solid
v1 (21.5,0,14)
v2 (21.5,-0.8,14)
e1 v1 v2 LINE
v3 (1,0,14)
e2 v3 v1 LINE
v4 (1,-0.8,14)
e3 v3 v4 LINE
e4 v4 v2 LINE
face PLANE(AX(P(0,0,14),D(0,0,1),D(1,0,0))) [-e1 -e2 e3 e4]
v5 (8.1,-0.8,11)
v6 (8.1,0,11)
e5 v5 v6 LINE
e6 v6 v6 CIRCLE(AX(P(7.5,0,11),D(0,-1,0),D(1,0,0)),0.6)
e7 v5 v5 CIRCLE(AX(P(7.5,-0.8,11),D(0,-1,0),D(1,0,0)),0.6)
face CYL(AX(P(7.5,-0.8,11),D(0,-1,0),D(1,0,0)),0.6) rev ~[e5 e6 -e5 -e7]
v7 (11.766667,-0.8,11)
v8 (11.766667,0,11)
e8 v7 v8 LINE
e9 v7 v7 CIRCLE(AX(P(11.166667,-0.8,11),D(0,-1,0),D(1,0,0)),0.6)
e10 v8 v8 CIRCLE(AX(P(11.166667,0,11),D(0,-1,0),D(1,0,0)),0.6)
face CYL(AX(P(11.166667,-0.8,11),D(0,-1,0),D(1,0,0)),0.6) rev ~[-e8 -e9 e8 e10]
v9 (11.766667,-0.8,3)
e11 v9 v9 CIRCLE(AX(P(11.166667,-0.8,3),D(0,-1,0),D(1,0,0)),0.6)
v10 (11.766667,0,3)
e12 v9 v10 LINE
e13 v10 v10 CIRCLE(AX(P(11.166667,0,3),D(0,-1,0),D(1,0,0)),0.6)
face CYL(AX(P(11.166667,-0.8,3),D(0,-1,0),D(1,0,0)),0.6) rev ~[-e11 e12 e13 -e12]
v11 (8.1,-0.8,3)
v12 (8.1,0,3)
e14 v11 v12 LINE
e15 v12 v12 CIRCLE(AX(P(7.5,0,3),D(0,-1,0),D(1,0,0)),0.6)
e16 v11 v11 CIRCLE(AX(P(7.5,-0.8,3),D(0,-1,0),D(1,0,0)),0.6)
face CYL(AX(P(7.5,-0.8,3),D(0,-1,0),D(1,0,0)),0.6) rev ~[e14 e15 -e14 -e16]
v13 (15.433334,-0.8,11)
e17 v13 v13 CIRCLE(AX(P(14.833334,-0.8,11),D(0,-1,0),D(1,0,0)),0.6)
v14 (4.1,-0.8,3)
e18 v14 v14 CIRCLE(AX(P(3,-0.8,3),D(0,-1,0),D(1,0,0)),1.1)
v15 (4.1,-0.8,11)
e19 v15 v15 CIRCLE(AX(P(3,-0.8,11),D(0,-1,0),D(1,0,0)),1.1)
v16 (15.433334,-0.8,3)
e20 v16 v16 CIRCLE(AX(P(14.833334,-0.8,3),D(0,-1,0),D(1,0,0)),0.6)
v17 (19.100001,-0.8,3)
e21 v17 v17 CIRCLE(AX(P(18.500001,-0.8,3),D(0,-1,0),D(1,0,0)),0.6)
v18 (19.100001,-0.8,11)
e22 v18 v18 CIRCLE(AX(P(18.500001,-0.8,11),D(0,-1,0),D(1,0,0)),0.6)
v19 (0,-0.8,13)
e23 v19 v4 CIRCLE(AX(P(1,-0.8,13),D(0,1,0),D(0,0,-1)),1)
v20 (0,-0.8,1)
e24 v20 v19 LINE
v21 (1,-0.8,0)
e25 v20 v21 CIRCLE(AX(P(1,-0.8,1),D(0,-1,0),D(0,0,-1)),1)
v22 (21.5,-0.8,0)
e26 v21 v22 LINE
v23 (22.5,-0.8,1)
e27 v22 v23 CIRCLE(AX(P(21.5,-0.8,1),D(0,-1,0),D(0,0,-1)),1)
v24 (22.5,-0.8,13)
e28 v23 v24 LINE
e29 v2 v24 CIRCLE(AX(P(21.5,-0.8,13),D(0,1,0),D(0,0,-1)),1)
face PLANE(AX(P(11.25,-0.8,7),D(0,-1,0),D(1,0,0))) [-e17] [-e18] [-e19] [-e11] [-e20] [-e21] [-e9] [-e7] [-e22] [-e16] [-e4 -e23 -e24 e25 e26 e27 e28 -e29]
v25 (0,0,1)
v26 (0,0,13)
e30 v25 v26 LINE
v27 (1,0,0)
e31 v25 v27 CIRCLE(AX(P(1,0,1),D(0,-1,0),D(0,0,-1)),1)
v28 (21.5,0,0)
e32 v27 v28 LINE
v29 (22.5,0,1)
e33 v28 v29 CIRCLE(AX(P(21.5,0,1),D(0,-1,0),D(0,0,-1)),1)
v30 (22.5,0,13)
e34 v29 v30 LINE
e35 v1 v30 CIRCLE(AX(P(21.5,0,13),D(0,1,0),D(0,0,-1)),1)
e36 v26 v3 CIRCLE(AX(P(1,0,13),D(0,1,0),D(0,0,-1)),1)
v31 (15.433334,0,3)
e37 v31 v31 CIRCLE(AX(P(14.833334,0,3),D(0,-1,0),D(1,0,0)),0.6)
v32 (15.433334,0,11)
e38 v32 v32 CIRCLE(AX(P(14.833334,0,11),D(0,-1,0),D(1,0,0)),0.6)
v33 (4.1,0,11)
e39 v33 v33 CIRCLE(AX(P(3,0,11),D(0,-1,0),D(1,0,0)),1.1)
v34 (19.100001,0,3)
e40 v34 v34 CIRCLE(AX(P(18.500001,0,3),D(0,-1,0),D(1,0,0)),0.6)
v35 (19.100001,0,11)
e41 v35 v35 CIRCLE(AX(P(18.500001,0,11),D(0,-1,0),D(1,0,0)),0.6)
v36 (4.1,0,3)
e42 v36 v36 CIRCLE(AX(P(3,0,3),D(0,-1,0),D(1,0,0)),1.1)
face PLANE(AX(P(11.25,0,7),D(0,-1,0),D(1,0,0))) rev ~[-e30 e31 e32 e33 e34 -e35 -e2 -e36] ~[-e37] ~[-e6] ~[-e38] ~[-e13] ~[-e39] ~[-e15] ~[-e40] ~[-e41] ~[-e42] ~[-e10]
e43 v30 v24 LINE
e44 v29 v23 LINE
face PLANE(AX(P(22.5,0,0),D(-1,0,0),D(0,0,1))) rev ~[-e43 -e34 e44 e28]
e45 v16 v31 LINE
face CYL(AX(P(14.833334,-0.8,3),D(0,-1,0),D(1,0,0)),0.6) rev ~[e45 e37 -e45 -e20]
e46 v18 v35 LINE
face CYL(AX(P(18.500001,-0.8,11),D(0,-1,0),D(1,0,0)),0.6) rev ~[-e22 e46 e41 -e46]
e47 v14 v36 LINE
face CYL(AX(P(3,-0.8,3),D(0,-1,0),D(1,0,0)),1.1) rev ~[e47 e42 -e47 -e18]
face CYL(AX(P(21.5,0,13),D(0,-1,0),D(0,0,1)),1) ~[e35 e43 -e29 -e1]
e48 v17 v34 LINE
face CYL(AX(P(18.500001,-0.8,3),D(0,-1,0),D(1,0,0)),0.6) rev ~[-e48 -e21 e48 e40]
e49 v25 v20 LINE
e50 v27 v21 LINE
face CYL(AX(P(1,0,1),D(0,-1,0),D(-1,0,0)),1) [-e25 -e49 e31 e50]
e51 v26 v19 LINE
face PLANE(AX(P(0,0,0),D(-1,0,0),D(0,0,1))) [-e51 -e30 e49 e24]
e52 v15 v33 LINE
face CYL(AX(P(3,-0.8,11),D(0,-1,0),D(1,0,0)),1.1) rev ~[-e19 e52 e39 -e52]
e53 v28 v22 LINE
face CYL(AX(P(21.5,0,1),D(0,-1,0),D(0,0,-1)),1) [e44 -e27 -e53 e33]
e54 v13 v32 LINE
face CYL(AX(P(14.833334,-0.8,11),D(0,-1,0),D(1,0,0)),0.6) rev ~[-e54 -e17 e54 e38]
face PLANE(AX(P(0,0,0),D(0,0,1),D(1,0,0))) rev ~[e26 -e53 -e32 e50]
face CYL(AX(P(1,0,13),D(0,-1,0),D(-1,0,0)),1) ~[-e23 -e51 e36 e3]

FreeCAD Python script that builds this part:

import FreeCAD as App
import Part
import Sketcher


def edges_at(feature, points):
    """Names of the edges that pass closest to the given points."""
    edges = feature.Shape.Edges
    near = lambda p: min(range(len(edges)), key=lambda i: edges[i].distToShape(Part.Vertex(*p))[0])
    return sorted({f"Edge{near(p) + 1}" for p in points})

doc = App.newDocument("Part")
body = doc.addObject("PartDesign::Body", "Body")

# Sketch on XZ plane
sketch1 = body.newObject("Sketcher::SketchObject", "Sketch")
sketch1.AttachmentSupport = (doc.getObject("XZ_Plane"), [""])
sketch1.MapMode = "FlatFace"
sketch1.addGeometry([
    Part.LineSegment(App.Vector(0, 14, 0), App.Vector(0, 0, 0)),
    Part.LineSegment(App.Vector(0, 0, 0), App.Vector(22.5, 0, 0)),
    Part.LineSegment(App.Vector(22.5, 0, 0), App.Vector(22.5, 14, 0)),
    Part.LineSegment(App.Vector(22.5, 14, 0), App.Vector(0, 14, 0)),
], False)
sketch1.addConstraint([
    Sketcher.Constraint("Coincident", 0, 2, 1, 1),
    Sketcher.Constraint("Coincident", 1, 2, 2, 1),
    Sketcher.Constraint("Coincident", 2, 2, 3, 1),
    Sketcher.Constraint("Coincident", 3, 2, 0, 1),
    Sketcher.Constraint("Vertical", 0),
    Sketcher.Constraint("Horizontal", 1),
    Sketcher.Constraint("Vertical", 2),
    Sketcher.Constraint("Horizontal", 3),
    Sketcher.Constraint("Coincident", 0, 2, -1, 1),
    Sketcher.Constraint("DistanceY", 0, 2, 0, 1, 14.0),
    Sketcher.Constraint("DistanceX", 1, 1, 1, 2, 22.5),
])
pad1 = body.newObject("PartDesign::Pad", "Pad")
pad1.Profile = sketch1
pad1.Length = 0.8

# Sketch on XZ plane
sketch2 = body.newObject("Sketcher::SketchObject", "Sketch001")
sketch2.AttachmentSupport = (doc.getObject("XZ_Plane"), [""])
sketch2.MapMode = "FlatFace"
sketch2.AttachmentOffset = App.Placement(App.Vector(0, 0, 0.8), App.Rotation())
sketch2.addGeometry([
    Part.Circle(App.Vector(3, 11, 0), App.Vector(0, 0, 1), 1.1),
    Part.Circle(App.Vector(3, 3, 0), App.Vector(0, 0, 1), 1.1),
], False)
sketch2.addConstraint([
    Sketcher.Constraint("Equal", 0, 1),
    Sketcher.Constraint("Vertical", 0, 3, 1, 3),
    Sketcher.Constraint("Diameter", 0, 2.2),
    Sketcher.Constraint("DistanceX", -1, 1, 0, 3, 3.0),
    Sketcher.Constraint("DistanceY", -1, 1, 0, 3, 11.0),
    Sketcher.Constraint("DistanceY", -1, 1, 1, 3, 3.0),
])
pocket1 = body.newObject("PartDesign::Pocket", "Pocket")
pocket1.Profile = sketch2
pocket1.Length = 5
doc.recompute()

fillet = body.newObject("PartDesign::Fillet", "Fillet")
fillet.Base = (pocket1, edges_at(pocket1, [
    (0, -0.4, 14),
    (22.5, -0.4, 14),
    (22.5, -0.4, 0),
    (0, -0.4, 0),
]))
fillet.Radius = 1

# Sketch on XZ plane
sketch3 = body.newObject("Sketcher::SketchObject", "Sketch002")
sketch3.AttachmentSupport = (doc.getObject("XZ_Plane"), [""])
sketch3.MapMode = "FlatFace"
sketch3.AttachmentOffset = App.Placement(App.Vector(0, 0, 0.8), App.Rotation())
sketch3.addGeometry([
    Part.Circle(App.Vector(7.5, 11, 0), App.Vector(0, 0, 1), 0.6),
    Part.Circle(App.Vector(7.5, 3, 0), App.Vector(0, 0, 1), 0.6),
], False)
sketch3.addConstraint([
    Sketcher.Constraint("Equal", 0, 1),
    Sketcher.Constraint("Vertical", 0, 3, 1, 3),
    Sketcher.Constraint("Diameter", 0, 1.2),
    Sketcher.Constraint("DistanceY", -1, 1, 0, 3, 11.0),
    Sketcher.Constraint("DistanceY", -1, 1, 1, 3, 3.0),
    Sketcher.Constraint("DistanceX", -1, 1, 0, 3, 7.5),
])
pocket2 = body.newObject("PartDesign::Pocket", "Pocket001")
pocket2.Profile = sketch3
pocket2.Length = 5
doc.recompute()

linearpattern = body.newObject("PartDesign::LinearPattern", "LinearPattern")
linearpattern.Originals = [pocket2]
linearpattern.Direction = (doc.getObject("X_Axis"), [""])
linearpattern.Mode = "offset"
linearpattern.Offset = 3.666667
linearpattern.Occurrences = 4
body.Tip = linearpattern

doc.recompute()
